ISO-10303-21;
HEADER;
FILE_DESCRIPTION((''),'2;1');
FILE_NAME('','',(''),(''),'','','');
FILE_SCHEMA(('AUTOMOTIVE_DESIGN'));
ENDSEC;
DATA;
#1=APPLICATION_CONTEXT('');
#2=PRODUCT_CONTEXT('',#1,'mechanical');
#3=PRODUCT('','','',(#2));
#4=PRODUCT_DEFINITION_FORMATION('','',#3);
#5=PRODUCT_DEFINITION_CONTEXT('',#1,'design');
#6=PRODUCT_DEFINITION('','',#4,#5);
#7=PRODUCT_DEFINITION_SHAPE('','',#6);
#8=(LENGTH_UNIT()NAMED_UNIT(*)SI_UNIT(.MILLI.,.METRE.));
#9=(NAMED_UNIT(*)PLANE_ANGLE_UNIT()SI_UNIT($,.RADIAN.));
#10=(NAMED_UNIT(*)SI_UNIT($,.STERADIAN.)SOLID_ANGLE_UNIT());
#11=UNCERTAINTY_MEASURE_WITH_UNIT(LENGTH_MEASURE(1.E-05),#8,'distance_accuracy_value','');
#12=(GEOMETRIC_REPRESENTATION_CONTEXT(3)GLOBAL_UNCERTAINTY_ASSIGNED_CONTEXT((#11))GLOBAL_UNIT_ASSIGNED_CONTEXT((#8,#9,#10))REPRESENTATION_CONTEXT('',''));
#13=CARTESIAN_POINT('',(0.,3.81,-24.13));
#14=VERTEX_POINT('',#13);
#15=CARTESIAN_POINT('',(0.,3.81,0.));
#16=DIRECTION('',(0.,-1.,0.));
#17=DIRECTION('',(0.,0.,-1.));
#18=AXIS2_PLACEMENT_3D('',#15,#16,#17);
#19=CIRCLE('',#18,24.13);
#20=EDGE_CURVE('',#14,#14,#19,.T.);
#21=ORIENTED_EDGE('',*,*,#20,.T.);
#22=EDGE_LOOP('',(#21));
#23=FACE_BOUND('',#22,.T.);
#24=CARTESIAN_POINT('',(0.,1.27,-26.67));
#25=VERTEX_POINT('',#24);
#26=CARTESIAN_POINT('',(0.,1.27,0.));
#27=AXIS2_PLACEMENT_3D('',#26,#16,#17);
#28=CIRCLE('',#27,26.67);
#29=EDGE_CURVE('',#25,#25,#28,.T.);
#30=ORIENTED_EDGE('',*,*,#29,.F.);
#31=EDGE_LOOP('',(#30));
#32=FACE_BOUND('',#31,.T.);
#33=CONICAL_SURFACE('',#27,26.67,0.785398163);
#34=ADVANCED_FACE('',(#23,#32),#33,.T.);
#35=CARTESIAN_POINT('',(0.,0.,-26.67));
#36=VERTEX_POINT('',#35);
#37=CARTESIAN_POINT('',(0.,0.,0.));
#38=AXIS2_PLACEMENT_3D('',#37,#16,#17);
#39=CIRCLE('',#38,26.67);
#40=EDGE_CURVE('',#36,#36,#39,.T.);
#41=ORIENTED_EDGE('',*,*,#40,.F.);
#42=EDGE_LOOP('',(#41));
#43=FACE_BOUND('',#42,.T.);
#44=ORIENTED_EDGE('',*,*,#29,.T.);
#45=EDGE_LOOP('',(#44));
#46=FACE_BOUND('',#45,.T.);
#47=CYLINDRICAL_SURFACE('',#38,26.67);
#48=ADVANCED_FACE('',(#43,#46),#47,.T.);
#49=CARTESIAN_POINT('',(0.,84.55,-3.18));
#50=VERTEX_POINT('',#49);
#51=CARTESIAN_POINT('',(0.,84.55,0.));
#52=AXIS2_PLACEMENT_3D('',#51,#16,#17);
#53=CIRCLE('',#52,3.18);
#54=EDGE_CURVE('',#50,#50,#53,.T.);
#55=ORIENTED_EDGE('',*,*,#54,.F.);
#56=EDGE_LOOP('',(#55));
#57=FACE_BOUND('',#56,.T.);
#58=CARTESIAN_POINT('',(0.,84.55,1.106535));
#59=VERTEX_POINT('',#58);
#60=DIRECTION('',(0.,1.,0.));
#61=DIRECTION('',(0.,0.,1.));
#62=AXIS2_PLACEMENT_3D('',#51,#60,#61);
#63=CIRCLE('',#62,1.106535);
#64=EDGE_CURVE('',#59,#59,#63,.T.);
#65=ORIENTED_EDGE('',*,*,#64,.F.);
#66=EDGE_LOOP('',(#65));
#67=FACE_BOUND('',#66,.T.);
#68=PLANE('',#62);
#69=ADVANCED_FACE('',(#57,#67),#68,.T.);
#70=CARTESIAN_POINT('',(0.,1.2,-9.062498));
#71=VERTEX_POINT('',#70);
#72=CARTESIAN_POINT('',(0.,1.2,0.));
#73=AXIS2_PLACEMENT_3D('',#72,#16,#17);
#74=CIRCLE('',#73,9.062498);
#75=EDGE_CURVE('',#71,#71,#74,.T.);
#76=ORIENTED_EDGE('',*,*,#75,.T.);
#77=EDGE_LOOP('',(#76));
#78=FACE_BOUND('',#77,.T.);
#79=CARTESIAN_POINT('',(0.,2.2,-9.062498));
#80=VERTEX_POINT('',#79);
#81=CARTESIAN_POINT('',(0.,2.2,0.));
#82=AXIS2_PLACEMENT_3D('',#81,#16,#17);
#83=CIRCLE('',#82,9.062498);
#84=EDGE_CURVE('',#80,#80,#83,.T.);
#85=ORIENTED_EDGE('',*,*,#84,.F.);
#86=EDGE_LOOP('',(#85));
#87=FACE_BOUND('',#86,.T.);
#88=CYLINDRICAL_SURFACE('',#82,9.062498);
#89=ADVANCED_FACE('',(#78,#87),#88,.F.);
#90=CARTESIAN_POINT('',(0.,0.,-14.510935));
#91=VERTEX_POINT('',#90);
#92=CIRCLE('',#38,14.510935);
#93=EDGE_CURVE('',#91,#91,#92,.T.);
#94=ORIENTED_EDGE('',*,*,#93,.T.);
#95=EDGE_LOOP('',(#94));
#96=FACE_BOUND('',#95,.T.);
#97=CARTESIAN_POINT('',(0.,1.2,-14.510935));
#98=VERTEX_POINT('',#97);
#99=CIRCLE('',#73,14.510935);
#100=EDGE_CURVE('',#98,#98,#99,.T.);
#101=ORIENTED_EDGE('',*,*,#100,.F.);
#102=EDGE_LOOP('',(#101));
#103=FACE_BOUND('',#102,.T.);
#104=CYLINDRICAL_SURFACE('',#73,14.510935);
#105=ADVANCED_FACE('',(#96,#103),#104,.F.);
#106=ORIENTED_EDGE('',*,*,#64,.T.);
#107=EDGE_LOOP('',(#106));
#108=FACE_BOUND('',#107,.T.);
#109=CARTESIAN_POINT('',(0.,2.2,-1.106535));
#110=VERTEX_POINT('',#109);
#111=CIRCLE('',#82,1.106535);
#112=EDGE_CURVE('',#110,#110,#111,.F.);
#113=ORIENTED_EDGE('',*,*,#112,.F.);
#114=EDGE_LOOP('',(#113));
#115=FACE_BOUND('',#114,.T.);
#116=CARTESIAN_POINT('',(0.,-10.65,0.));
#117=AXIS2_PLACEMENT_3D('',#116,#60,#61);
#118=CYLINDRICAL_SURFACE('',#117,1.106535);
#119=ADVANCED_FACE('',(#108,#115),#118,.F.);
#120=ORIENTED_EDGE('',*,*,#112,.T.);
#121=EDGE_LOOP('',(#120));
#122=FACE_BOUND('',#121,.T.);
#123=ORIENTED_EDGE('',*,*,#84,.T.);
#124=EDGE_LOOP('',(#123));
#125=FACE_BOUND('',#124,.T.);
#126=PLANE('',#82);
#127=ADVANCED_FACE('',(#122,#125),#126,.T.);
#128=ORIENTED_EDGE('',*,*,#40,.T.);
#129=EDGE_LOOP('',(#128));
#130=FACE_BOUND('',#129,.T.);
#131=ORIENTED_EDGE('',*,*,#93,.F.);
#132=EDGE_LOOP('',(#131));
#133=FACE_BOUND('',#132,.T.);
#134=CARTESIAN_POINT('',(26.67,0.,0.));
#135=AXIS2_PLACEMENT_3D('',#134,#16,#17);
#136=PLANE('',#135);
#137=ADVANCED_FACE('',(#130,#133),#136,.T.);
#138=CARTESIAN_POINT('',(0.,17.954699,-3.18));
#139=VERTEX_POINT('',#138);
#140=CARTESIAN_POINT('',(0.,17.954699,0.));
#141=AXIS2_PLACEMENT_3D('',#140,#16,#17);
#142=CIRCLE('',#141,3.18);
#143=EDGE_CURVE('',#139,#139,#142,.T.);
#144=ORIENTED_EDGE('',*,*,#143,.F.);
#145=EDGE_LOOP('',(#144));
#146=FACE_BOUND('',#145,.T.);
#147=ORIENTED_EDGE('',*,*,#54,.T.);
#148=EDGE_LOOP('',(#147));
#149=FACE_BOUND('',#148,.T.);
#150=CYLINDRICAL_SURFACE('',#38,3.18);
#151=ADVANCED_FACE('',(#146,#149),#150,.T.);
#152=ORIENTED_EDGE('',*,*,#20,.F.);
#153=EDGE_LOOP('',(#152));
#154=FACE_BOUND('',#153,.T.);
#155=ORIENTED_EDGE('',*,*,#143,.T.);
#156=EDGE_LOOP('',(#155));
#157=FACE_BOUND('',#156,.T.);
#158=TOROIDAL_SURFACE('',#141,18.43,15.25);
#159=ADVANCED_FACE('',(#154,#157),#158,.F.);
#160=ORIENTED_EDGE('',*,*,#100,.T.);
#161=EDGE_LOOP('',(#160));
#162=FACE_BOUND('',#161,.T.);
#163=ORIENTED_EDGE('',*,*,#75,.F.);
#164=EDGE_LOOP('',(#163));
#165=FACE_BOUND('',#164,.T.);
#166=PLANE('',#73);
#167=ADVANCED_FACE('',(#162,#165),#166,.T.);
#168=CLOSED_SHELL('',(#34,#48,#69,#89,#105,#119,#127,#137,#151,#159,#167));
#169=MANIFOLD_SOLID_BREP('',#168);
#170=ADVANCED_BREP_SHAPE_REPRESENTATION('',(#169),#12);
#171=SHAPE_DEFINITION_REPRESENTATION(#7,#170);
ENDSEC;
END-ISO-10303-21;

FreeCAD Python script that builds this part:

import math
import FreeCAD as App
import Part
import Sketcher

V = App.Vector
Q = App.Units.Quantity

doc = App.newDocument("Part")
body = doc.addObject("PartDesign::Body", "Body")

# Sketch on XY plane
sketch1 = body.newObject("Sketcher::SketchObject", "Sketch")
sketch1.AttachmentSupport = (doc.getObject("XY_Plane"), [""])
sketch1.MapMode = "FlatFace"
sketch1.addGeometry([
    Part.LineSegment(V(0, 84.5, 0), V(0, 0, 0)),  # 0
    Part.LineSegment(V(0, 0, 0), V(26.7, 0, 0)),  # 1
    Part.LineSegment(V(26.7, 0, 0), V(26.7, 1.3, 0)),  # 2
    Part.LineSegment(V(26.7, 1.3, 0), V(24.1, 3.8, 0)),  # 3
    Part.ArcOfCircle(Part.Circle(V(18.4, 18, 0), V(0, 0, 1), 15.2), math.radians(180), math.radians(292)),  # 4
    Part.LineSegment(V(3.2, 18, 0), V(3.2, 84.5, 0)),  # 5
    Part.LineSegment(V(3.2, 84.5, 0), V(0, 84.5, 0)),  # 6
], False)
sketch1.addConstraint([
    Sketcher.Constraint("Coincident", 0, 2, 1, 1),
    Sketcher.Constraint("Coincident", 1, 2, 2, 1),
    Sketcher.Constraint("Coincident", 2, 2, 3, 1),
    Sketcher.Constraint("Coincident", 3, 2, 4, 2),
    Sketcher.Constraint("Tangent", 4, 1, 5, 1),
    Sketcher.Constraint("Coincident", 5, 2, 6, 1),
    Sketcher.Constraint("Coincident", 6, 2, 0, 1),
    Sketcher.Constraint("Vertical", 0),
    Sketcher.Constraint("Horizontal", 1),
    Sketcher.Constraint("Vertical", 2),
    Sketcher.Constraint("Vertical", 5),
    Sketcher.Constraint("Horizontal", 6),
    Sketcher.Constraint("Coincident", 0, 2, -1, 1),
    Sketcher.Constraint("Angle", 3, Q("135 deg")),
    Sketcher.Constraint("Radius", 4, Q("15.25 mm")),
    Sketcher.Constraint("DistanceX", 1, 1, 1, 2, Q("26.67 mm")),
    Sketcher.Constraint("DistanceX", 6, 2, 6, 1, Q("3.18 mm")),
    Sketcher.Constraint("DistanceY", 0, 2, 0, 1, Q("84.55 mm")),
    Sketcher.Constraint("DistanceY", 2, 1, 2, 2, Q("1.27 mm")),
    Sketcher.Constraint("DistanceX", 4, 3, 3, 2, Q("5.7 mm")),
])
revolution = body.newObject("PartDesign::Revolution", "Revolution")
revolution.Profile = sketch1
revolution.ReferenceAxis = (sketch1, ["V_Axis"])
revolution.Angle = 360

# Sketch on XZ plane
sketch2 = body.newObject("Sketcher::SketchObject", "Sketch001")
sketch2.AttachmentSupport = (doc.getObject("XZ_Plane"), [""])
sketch2.MapMode = "FlatFace"
sketch2.addGeometry(Part.Circle(V(0, 0, 0), V(0, 0, 1), 15), False)
sketch2.addConstraint([
    Sketcher.Constraint("Coincident", 0, 3, -1, 1),
    Sketcher.Constraint("Diameter", 0, Q("29.021869 mm")),
])
pocket1 = body.newObject("PartDesign::Pocket", "Pocket")
pocket1.Profile = sketch2
pocket1.Length = 1.2

# Sketch on XZ plane
sketch3 = body.newObject("Sketcher::SketchObject", "Sketch002")
sketch3.AttachmentSupport = (doc.getObject("XZ_Plane"), [""])
sketch3.MapMode = "FlatFace"
sketch3.AttachmentOffset = App.Placement(V(0, 0, -84.55), App.Rotation())
sketch3.addGeometry(Part.Circle(V(0, 0, 0), V(0, 0, 1), 1.1), False)
sketch3.addConstraint([
    Sketcher.Constraint("Coincident", 0, 3, -1, 1),
    Sketcher.Constraint("Diameter", 0, Q("2.213071 mm")),
])
pocket2 = body.newObject("PartDesign::Pocket", "Pocket001")
pocket2.Profile = sketch3
pocket2.Length = 95.2
pocket2.Reversed = True

# Sketch on XZ plane
sketch4 = body.newObject("Sketcher::SketchObject", "Sketch003")
sketch4.AttachmentSupport = (doc.getObject("XZ_Plane"), [""])
sketch4.MapMode = "FlatFace"
sketch4.AttachmentOffset = App.Placement(V(0, 0, -1.2), App.Rotation())
sketch4.addGeometry(Part.Circle(V(0, 0, 0), V(0, 0, 1), 9), False)
sketch4.addConstraint([
    Sketcher.Constraint("Coincident", 0, 3, -1, 1),
    Sketcher.Constraint("Diameter", 0, Q("18.124995 mm")),
])
pocket3 = body.newObject("PartDesign::Pocket", "Pocket002")
pocket3.Profile = sketch4
pocket3.Length = 1

doc.recompute()
